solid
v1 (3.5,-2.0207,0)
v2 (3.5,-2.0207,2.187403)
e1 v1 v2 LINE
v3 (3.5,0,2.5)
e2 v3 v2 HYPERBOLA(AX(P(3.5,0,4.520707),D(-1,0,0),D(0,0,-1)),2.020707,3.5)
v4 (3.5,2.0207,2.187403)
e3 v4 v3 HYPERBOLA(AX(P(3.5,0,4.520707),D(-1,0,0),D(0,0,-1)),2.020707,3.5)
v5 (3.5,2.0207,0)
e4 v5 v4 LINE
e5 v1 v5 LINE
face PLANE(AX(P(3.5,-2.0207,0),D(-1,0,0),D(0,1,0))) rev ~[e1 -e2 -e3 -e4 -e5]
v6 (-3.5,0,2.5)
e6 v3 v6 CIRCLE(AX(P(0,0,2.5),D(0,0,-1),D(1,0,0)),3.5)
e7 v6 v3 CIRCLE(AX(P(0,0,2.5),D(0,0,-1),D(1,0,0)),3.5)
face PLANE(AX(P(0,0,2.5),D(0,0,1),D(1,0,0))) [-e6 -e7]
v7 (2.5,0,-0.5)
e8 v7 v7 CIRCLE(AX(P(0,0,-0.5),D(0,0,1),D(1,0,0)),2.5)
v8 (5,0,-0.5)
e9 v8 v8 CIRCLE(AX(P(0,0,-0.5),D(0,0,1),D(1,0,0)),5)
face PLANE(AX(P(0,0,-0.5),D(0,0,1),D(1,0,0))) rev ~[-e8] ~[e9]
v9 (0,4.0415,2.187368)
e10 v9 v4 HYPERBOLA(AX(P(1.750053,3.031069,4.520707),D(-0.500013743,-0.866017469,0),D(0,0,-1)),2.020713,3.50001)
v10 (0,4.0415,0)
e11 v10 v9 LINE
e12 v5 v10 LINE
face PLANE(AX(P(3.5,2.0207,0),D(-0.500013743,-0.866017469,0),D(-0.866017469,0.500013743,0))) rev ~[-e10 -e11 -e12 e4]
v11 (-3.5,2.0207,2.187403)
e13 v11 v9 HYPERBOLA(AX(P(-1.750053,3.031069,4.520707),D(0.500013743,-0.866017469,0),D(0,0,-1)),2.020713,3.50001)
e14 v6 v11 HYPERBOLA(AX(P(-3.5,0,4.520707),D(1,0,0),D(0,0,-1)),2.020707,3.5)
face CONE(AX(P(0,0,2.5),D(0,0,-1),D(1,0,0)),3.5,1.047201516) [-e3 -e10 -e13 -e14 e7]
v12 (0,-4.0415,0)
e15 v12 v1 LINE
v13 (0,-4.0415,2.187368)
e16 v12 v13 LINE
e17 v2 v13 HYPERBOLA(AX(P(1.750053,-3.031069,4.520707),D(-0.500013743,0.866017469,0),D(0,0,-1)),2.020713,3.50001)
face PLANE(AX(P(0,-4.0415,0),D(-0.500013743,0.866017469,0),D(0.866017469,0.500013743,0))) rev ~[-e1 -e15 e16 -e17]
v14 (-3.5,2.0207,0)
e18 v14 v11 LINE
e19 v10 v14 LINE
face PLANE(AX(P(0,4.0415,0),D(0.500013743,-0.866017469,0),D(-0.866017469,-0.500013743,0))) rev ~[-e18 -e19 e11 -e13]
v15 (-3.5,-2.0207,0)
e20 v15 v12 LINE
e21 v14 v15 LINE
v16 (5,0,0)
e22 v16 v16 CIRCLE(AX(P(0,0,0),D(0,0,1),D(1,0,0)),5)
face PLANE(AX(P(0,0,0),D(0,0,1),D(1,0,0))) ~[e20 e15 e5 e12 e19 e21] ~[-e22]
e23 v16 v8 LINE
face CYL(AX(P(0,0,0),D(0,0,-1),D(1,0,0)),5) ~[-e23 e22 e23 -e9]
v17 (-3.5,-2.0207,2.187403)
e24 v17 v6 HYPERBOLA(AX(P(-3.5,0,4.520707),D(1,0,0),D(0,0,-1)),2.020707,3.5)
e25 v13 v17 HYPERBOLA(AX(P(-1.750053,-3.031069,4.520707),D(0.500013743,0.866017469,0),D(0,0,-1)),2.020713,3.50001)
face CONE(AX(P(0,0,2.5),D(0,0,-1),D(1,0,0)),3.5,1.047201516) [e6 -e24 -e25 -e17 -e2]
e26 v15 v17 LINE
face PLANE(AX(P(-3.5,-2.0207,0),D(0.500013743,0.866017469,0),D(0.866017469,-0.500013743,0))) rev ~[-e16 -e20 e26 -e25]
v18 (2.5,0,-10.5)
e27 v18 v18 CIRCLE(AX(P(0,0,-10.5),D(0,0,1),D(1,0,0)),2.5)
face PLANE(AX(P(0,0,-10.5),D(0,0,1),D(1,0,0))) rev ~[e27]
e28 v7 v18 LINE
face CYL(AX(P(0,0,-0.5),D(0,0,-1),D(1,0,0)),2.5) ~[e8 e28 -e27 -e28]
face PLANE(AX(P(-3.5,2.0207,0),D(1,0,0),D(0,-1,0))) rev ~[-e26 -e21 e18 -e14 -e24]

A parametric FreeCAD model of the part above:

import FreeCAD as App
import Part
import Sketcher

V = App.Vector
Q = App.Units.Quantity


def add_polygon(sketch, points):
    """Adds a closed chain of lines whose ends are joined by coincident constraints."""
    first, n = sketch.GeometryCount, len(points)
    for a, b in zip(points, points[1:] + points[:1]):
        sketch.addGeometry(Part.LineSegment(App.Vector(*a, 0), App.Vector(*b, 0)), False)
    for i in range(n):
        sketch.addConstraint(Sketcher.Constraint("Coincident", first + i, 2, first + (i + 1) % n, 1))

doc = App.newDocument("Part")
params = doc.addObject("Spreadsheet::Sheet", "Params")
for row, (alias, value) in enumerate([
    ("sketch1_width", "5 mm"),
    ("sketch1_height", "10 mm"),
    ("sketch1_height2", "0.5 mm"),
    ("revolution_angle", "360 deg"),
    ("pad1_length", "2.5 mm"),
    ("sketch3_length", "3 mm"),
    ("groove_angle", "360 deg"),
], start=1):
    params.set(f"A{row}", alias)
    params.set(f"B{row}", "=" + value)
    params.setAlias(f"B{row}", alias)

body = doc.addObject("PartDesign::Body", "Body")

sketch1 = body.newObject("Sketcher::SketchObject", "Sketch")
sketch1.AttachmentSupport = (doc.getObject("XZ_Plane"), [""])
sketch1.MapMode = "FlatFace"
add_polygon(sketch1, [(2.5, -10.5), (2.5, -0.5), (5, -0.5), (5, 0), (0, 0), (0, -10.5)])
sketch1.addConstraint([
    Sketcher.Constraint("Vertical", 0),
    Sketcher.Constraint("Horizontal", 1),
    Sketcher.Constraint("Vertical", 2),
    Sketcher.Constraint("Horizontal", 3),
    Sketcher.Constraint("Vertical", 4),
    Sketcher.Constraint("Horizontal", 5),
    Sketcher.Constraint("Coincident", 3, 2, -1, 1),
    Sketcher.Constraint("Equal", 1, 5),
    Sketcher.Constraint("DistanceX", 3, 2, 3, 1, Q("5 mm")),
    Sketcher.Constraint("DistanceY", 0, 1, 0, 2, Q("10 mm")),
    Sketcher.Constraint("DistanceY", 2, 1, 2, 2, Q("0.5 mm")),
])
sketch1.setExpression("Constraints[14]", "Params.sketch1_width")
sketch1.setExpression("Constraints[15]", "Params.sketch1_height")
sketch1.setExpression("Constraints[16]", "Params.sketch1_height2")
revolution = body.newObject("PartDesign::Revolution", "Revolution")
revolution.Profile = sketch1
revolution.ReferenceAxis = (sketch1, ["V_Axis"])
revolution.setExpression("Angle", "Params.revolution_angle")

sketch2 = body.newObject("Sketcher::SketchObject", "Sketch001")
sketch2.AttachmentSupport = (doc.getObject("XY_Plane"), [""])
sketch2.MapMode = "FlatFace"
add_polygon(sketch2, [(0, 4), (-3.5, 2), (-3.5, -2), (0, -4), (3.5, -2), (3.5, 2)])
sketch2.addConstraint([
    Sketcher.Constraint("Vertical", 1),
    Sketcher.Constraint("Vertical", 4),
    Sketcher.Constraint("Symmetric", 0, 2, 3, 2, -1, 1),
    Sketcher.Constraint("Symmetric", 2, 2, 5, 2, -1, 1),
    Sketcher.Constraint("PointOnObject", 2, 2, -2),
    Sketcher.Constraint("Parallel", 2, 5),
    Sketcher.Constraint("Horizontal", 1, 2, 3, 2),
    Sketcher.Constraint("Angle", 0, Q("-149.999 deg")),
    Sketcher.Constraint("DistanceX", 1, 2, 3, 2, Q("7 mm")),
    Sketcher.Constraint("DistanceY", 1, 2, 1, 1, Q("4.0414 mm")),
])
pad1 = body.newObject("PartDesign::Pad", "Pad")
pad1.Profile = sketch2
pad1.setExpression("Length", "Params.pad1_length")

sketch3 = body.newObject("Sketcher::SketchObject", "Sketch002")
sketch3.AttachmentSupport = (doc.getObject("XZ_Plane"), [""])
sketch3.MapMode = "FlatFace"
add_polygon(sketch3, [(6.1, 1), (6.1, 2.5), (3.5, 2.5)])
sketch3.addConstraint([
    Sketcher.Constraint("Vertical", 0),
    Sketcher.Constraint("Horizontal", 1),
    Sketcher.Constraint("Angle", 2, Q("-29.9998 deg")),
    Sketcher.Constraint("Distance", 2, Q("3 mm")),
    Sketcher.Constraint("DistanceY", -1, 1, 2, 2, Q("1 mm")),
    Sketcher.Constraint("DistanceX", -1, 1, 1, 2, Q("3.5 mm")),
])
sketch3.setExpression("Constraints[6]", "Params.sketch3_length")
groove = body.newObject("PartDesign::Groove", "Groove")
groove.Profile = sketch3
groove.ReferenceAxis = (sketch3, ["V_Axis"])
groove.setExpression("Angle", "Params.groove_angle")

doc.recompute()
